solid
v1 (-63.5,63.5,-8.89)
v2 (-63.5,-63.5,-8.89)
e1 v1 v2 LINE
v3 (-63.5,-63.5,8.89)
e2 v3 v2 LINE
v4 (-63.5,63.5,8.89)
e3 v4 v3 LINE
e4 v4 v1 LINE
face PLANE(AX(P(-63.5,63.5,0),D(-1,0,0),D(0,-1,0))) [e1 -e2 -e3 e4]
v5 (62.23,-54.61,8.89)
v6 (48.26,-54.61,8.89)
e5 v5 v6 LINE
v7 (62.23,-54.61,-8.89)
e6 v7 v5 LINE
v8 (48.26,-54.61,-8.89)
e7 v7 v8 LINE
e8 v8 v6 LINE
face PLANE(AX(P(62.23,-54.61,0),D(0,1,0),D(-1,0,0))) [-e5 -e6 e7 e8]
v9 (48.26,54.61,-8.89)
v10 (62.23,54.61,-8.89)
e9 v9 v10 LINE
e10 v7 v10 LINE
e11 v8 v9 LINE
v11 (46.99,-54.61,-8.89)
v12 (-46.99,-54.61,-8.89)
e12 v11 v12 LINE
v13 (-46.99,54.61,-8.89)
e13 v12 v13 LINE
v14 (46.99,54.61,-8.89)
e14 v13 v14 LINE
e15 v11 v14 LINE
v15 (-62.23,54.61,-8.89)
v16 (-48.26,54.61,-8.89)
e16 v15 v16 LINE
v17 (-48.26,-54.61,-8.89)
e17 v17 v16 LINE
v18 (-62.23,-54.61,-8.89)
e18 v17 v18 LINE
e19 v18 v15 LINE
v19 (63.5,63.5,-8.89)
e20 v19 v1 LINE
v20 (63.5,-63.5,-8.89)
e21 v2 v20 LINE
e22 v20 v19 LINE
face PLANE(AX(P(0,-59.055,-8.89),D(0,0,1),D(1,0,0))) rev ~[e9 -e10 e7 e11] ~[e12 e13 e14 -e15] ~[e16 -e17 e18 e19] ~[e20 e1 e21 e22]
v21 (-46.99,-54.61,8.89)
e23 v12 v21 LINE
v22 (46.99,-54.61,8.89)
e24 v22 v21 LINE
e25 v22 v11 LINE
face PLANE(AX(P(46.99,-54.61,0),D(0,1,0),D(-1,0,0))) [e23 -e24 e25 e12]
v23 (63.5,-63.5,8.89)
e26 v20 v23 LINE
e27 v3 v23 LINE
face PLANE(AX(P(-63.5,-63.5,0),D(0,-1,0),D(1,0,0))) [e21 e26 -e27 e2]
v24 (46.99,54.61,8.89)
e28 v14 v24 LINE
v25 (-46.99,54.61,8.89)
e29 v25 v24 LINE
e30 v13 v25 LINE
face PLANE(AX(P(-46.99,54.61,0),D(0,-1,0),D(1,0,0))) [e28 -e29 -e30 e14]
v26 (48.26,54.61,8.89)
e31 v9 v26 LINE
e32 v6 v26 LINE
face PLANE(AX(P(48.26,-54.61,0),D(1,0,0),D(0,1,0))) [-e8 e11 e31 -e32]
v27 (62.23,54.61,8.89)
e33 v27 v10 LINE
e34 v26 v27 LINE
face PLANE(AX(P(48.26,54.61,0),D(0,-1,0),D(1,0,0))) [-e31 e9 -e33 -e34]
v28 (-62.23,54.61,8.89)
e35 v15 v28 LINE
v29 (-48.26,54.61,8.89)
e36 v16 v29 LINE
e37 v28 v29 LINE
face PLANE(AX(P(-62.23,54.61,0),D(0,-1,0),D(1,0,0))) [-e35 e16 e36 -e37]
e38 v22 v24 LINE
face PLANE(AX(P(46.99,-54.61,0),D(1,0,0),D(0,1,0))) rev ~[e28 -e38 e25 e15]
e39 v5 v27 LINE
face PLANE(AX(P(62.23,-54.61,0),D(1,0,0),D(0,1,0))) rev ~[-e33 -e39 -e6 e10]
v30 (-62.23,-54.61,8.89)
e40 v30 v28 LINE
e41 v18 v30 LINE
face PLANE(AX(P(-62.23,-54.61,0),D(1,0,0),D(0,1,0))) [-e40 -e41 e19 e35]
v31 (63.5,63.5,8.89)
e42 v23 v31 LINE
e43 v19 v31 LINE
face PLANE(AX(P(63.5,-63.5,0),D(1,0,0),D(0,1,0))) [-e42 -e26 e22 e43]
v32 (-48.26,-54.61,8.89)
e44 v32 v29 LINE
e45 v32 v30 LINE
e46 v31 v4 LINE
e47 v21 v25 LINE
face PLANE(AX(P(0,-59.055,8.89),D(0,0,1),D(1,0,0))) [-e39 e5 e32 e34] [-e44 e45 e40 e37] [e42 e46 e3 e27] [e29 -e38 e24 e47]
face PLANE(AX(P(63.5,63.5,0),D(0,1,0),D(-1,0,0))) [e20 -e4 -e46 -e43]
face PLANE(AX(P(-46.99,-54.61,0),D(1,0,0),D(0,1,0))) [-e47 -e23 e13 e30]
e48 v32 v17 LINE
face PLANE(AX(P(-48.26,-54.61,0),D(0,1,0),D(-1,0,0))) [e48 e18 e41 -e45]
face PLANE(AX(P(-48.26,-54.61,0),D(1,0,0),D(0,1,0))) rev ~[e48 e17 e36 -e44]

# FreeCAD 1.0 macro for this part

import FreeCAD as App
import Part
import Sketcher
Q = App.Units.Quantity


def add_polygon(sketch, points):
    """Adds a closed chain of lines whose ends are joined by coincident constraints."""
    first, n = sketch.GeometryCount, len(points)
    for a, b in zip(points, points[1:] + points[:1]):
        sketch.addGeometry(Part.LineSegment(App.Vector(*a, 0), App.Vector(*b, 0)), False)
    for i in range(n):
        sketch.addConstraint(Sketcher.Constraint("Coincident", first + i, 2, first + (i + 1) % n, 1))

doc = App.newDocument("Part")
params = doc.addObject("Spreadsheet::Sheet", "Params")
for row, (alias, value) in enumerate([
    ("sketch1_width", "5 in"),
    ("sketch1_width2", "3.7 in"),
    ("sketch1_height", "4.3 in"),
    ("sketch1_width3", "0.55 in"),
    ("pad1_length", "0.7 in"),
], start=1):
    params.set(f"A{row}", alias)
    params.set(f"B{row}", "=" + value)
    params.setAlias(f"B{row}", alias)

body = doc.addObject("PartDesign::Body", "Body")

sketch1 = body.newObject("Sketcher::SketchObject", "Sketch")
sketch1.AttachmentSupport = (doc.getObject("XY_Plane"), [""])
sketch1.MapMode = "FlatFace"
add_polygon(sketch1, [(-64, -64), (64, -64), (64, 64), (-64, 64)])
add_polygon(sketch1, [(62, 55), (62, -55), (48, -55), (48, 55)])
add_polygon(sketch1, [(47, -55), (-47, -55), (-47, 55), (47, 55)])
add_polygon(sketch1, [(-48, -55), (-62, -55), (-62, 55), (-48, 55)])
sketch1.addConstraint(Sketcher.Constraint("Horizontal", 0))
sketch1.addConstraint(Sketcher.Constraint("Vertical", 1))
sketch1.addConstraint(Sketcher.Constraint("Horizontal", 2))
sketch1.addConstraint(Sketcher.Constraint("Vertical", 3))
sketch1.addConstraint(Sketcher.Constraint("Vertical", 4))
sketch1.addConstraint(Sketcher.Constraint("Horizontal", 5))
sketch1.addConstraint(Sketcher.Constraint("Vertical", 6))
sketch1.addConstraint(Sketcher.Constraint("Horizontal", 7))
sketch1.addConstraint(Sketcher.Constraint("Horizontal", 8))
sketch1.addConstraint(Sketcher.Constraint("Vertical", 9))
sketch1.addConstraint(Sketcher.Constraint("Horizontal", 10))
sketch1.addConstraint(Sketcher.Constraint("Vertical", 11))
sketch1.addConstraint(Sketcher.Constraint("Horizontal", 12))
sketch1.addConstraint(Sketcher.Constraint("Vertical", 13))
sketch1.addConstraint(Sketcher.Constraint("Horizontal", 14))
sketch1.addConstraint(Sketcher.Constraint("Vertical", 15))
sketch1.addConstraint(Sketcher.Constraint("Symmetric", 0, 2, 2, 2, -1, 1))
sketch1.addConstraint(Sketcher.Constraint("Symmetric", 8, 2, 10, 2, -1, 1))
sketch1.addConstraint(Sketcher.Constraint("Symmetric", 7, 2, 12, 2, -1, 1))
sketch1.addConstraint(Sketcher.Constraint("Symmetric", 5, 2, 14, 2, -1, 1))
sketch1.addConstraint(Sketcher.Constraint("Horizontal", 5, 2, 8, 2))
sketch1.addConstraint(Sketcher.Constraint("Horizontal", 7, 2, 9, 2))
sketch1.addConstraint(Sketcher.Constraint("Equal", 2, 1))
sketch1.addConstraint(Sketcher.Constraint("DistanceX", 0, 1, 0, 2, Q("5 in")))
sketch1.addConstraint(Sketcher.Constraint("DistanceX", 8, 2, 8, 1, Q("3.7 in")))
sketch1.addConstraint(Sketcher.Constraint("DistanceY", 4, 2, 4, 1, Q("4.3 in")))
sketch1.addConstraint(Sketcher.Constraint("DistanceX", 5, 2, 5, 1, Q("0.55 in")))
sketch1.addConstraint(Sketcher.Constraint("DistanceX", -1, 1, 5, 2, Q("1.9 in")))
sketch1.setExpression("Constraints[39]", "Params.sketch1_width")
sketch1.setExpression("Constraints[40]", "Params.sketch1_width2")
sketch1.setExpression("Constraints[41]", "Params.sketch1_height")
sketch1.setExpression("Constraints[42]", "Params.sketch1_width3")
pad1 = body.newObject("PartDesign::Pad", "Pad")
pad1.Profile = sketch1
pad1.setExpression("Length", "Params.pad1_length")
pad1.Midplane = True

doc.recompute()
